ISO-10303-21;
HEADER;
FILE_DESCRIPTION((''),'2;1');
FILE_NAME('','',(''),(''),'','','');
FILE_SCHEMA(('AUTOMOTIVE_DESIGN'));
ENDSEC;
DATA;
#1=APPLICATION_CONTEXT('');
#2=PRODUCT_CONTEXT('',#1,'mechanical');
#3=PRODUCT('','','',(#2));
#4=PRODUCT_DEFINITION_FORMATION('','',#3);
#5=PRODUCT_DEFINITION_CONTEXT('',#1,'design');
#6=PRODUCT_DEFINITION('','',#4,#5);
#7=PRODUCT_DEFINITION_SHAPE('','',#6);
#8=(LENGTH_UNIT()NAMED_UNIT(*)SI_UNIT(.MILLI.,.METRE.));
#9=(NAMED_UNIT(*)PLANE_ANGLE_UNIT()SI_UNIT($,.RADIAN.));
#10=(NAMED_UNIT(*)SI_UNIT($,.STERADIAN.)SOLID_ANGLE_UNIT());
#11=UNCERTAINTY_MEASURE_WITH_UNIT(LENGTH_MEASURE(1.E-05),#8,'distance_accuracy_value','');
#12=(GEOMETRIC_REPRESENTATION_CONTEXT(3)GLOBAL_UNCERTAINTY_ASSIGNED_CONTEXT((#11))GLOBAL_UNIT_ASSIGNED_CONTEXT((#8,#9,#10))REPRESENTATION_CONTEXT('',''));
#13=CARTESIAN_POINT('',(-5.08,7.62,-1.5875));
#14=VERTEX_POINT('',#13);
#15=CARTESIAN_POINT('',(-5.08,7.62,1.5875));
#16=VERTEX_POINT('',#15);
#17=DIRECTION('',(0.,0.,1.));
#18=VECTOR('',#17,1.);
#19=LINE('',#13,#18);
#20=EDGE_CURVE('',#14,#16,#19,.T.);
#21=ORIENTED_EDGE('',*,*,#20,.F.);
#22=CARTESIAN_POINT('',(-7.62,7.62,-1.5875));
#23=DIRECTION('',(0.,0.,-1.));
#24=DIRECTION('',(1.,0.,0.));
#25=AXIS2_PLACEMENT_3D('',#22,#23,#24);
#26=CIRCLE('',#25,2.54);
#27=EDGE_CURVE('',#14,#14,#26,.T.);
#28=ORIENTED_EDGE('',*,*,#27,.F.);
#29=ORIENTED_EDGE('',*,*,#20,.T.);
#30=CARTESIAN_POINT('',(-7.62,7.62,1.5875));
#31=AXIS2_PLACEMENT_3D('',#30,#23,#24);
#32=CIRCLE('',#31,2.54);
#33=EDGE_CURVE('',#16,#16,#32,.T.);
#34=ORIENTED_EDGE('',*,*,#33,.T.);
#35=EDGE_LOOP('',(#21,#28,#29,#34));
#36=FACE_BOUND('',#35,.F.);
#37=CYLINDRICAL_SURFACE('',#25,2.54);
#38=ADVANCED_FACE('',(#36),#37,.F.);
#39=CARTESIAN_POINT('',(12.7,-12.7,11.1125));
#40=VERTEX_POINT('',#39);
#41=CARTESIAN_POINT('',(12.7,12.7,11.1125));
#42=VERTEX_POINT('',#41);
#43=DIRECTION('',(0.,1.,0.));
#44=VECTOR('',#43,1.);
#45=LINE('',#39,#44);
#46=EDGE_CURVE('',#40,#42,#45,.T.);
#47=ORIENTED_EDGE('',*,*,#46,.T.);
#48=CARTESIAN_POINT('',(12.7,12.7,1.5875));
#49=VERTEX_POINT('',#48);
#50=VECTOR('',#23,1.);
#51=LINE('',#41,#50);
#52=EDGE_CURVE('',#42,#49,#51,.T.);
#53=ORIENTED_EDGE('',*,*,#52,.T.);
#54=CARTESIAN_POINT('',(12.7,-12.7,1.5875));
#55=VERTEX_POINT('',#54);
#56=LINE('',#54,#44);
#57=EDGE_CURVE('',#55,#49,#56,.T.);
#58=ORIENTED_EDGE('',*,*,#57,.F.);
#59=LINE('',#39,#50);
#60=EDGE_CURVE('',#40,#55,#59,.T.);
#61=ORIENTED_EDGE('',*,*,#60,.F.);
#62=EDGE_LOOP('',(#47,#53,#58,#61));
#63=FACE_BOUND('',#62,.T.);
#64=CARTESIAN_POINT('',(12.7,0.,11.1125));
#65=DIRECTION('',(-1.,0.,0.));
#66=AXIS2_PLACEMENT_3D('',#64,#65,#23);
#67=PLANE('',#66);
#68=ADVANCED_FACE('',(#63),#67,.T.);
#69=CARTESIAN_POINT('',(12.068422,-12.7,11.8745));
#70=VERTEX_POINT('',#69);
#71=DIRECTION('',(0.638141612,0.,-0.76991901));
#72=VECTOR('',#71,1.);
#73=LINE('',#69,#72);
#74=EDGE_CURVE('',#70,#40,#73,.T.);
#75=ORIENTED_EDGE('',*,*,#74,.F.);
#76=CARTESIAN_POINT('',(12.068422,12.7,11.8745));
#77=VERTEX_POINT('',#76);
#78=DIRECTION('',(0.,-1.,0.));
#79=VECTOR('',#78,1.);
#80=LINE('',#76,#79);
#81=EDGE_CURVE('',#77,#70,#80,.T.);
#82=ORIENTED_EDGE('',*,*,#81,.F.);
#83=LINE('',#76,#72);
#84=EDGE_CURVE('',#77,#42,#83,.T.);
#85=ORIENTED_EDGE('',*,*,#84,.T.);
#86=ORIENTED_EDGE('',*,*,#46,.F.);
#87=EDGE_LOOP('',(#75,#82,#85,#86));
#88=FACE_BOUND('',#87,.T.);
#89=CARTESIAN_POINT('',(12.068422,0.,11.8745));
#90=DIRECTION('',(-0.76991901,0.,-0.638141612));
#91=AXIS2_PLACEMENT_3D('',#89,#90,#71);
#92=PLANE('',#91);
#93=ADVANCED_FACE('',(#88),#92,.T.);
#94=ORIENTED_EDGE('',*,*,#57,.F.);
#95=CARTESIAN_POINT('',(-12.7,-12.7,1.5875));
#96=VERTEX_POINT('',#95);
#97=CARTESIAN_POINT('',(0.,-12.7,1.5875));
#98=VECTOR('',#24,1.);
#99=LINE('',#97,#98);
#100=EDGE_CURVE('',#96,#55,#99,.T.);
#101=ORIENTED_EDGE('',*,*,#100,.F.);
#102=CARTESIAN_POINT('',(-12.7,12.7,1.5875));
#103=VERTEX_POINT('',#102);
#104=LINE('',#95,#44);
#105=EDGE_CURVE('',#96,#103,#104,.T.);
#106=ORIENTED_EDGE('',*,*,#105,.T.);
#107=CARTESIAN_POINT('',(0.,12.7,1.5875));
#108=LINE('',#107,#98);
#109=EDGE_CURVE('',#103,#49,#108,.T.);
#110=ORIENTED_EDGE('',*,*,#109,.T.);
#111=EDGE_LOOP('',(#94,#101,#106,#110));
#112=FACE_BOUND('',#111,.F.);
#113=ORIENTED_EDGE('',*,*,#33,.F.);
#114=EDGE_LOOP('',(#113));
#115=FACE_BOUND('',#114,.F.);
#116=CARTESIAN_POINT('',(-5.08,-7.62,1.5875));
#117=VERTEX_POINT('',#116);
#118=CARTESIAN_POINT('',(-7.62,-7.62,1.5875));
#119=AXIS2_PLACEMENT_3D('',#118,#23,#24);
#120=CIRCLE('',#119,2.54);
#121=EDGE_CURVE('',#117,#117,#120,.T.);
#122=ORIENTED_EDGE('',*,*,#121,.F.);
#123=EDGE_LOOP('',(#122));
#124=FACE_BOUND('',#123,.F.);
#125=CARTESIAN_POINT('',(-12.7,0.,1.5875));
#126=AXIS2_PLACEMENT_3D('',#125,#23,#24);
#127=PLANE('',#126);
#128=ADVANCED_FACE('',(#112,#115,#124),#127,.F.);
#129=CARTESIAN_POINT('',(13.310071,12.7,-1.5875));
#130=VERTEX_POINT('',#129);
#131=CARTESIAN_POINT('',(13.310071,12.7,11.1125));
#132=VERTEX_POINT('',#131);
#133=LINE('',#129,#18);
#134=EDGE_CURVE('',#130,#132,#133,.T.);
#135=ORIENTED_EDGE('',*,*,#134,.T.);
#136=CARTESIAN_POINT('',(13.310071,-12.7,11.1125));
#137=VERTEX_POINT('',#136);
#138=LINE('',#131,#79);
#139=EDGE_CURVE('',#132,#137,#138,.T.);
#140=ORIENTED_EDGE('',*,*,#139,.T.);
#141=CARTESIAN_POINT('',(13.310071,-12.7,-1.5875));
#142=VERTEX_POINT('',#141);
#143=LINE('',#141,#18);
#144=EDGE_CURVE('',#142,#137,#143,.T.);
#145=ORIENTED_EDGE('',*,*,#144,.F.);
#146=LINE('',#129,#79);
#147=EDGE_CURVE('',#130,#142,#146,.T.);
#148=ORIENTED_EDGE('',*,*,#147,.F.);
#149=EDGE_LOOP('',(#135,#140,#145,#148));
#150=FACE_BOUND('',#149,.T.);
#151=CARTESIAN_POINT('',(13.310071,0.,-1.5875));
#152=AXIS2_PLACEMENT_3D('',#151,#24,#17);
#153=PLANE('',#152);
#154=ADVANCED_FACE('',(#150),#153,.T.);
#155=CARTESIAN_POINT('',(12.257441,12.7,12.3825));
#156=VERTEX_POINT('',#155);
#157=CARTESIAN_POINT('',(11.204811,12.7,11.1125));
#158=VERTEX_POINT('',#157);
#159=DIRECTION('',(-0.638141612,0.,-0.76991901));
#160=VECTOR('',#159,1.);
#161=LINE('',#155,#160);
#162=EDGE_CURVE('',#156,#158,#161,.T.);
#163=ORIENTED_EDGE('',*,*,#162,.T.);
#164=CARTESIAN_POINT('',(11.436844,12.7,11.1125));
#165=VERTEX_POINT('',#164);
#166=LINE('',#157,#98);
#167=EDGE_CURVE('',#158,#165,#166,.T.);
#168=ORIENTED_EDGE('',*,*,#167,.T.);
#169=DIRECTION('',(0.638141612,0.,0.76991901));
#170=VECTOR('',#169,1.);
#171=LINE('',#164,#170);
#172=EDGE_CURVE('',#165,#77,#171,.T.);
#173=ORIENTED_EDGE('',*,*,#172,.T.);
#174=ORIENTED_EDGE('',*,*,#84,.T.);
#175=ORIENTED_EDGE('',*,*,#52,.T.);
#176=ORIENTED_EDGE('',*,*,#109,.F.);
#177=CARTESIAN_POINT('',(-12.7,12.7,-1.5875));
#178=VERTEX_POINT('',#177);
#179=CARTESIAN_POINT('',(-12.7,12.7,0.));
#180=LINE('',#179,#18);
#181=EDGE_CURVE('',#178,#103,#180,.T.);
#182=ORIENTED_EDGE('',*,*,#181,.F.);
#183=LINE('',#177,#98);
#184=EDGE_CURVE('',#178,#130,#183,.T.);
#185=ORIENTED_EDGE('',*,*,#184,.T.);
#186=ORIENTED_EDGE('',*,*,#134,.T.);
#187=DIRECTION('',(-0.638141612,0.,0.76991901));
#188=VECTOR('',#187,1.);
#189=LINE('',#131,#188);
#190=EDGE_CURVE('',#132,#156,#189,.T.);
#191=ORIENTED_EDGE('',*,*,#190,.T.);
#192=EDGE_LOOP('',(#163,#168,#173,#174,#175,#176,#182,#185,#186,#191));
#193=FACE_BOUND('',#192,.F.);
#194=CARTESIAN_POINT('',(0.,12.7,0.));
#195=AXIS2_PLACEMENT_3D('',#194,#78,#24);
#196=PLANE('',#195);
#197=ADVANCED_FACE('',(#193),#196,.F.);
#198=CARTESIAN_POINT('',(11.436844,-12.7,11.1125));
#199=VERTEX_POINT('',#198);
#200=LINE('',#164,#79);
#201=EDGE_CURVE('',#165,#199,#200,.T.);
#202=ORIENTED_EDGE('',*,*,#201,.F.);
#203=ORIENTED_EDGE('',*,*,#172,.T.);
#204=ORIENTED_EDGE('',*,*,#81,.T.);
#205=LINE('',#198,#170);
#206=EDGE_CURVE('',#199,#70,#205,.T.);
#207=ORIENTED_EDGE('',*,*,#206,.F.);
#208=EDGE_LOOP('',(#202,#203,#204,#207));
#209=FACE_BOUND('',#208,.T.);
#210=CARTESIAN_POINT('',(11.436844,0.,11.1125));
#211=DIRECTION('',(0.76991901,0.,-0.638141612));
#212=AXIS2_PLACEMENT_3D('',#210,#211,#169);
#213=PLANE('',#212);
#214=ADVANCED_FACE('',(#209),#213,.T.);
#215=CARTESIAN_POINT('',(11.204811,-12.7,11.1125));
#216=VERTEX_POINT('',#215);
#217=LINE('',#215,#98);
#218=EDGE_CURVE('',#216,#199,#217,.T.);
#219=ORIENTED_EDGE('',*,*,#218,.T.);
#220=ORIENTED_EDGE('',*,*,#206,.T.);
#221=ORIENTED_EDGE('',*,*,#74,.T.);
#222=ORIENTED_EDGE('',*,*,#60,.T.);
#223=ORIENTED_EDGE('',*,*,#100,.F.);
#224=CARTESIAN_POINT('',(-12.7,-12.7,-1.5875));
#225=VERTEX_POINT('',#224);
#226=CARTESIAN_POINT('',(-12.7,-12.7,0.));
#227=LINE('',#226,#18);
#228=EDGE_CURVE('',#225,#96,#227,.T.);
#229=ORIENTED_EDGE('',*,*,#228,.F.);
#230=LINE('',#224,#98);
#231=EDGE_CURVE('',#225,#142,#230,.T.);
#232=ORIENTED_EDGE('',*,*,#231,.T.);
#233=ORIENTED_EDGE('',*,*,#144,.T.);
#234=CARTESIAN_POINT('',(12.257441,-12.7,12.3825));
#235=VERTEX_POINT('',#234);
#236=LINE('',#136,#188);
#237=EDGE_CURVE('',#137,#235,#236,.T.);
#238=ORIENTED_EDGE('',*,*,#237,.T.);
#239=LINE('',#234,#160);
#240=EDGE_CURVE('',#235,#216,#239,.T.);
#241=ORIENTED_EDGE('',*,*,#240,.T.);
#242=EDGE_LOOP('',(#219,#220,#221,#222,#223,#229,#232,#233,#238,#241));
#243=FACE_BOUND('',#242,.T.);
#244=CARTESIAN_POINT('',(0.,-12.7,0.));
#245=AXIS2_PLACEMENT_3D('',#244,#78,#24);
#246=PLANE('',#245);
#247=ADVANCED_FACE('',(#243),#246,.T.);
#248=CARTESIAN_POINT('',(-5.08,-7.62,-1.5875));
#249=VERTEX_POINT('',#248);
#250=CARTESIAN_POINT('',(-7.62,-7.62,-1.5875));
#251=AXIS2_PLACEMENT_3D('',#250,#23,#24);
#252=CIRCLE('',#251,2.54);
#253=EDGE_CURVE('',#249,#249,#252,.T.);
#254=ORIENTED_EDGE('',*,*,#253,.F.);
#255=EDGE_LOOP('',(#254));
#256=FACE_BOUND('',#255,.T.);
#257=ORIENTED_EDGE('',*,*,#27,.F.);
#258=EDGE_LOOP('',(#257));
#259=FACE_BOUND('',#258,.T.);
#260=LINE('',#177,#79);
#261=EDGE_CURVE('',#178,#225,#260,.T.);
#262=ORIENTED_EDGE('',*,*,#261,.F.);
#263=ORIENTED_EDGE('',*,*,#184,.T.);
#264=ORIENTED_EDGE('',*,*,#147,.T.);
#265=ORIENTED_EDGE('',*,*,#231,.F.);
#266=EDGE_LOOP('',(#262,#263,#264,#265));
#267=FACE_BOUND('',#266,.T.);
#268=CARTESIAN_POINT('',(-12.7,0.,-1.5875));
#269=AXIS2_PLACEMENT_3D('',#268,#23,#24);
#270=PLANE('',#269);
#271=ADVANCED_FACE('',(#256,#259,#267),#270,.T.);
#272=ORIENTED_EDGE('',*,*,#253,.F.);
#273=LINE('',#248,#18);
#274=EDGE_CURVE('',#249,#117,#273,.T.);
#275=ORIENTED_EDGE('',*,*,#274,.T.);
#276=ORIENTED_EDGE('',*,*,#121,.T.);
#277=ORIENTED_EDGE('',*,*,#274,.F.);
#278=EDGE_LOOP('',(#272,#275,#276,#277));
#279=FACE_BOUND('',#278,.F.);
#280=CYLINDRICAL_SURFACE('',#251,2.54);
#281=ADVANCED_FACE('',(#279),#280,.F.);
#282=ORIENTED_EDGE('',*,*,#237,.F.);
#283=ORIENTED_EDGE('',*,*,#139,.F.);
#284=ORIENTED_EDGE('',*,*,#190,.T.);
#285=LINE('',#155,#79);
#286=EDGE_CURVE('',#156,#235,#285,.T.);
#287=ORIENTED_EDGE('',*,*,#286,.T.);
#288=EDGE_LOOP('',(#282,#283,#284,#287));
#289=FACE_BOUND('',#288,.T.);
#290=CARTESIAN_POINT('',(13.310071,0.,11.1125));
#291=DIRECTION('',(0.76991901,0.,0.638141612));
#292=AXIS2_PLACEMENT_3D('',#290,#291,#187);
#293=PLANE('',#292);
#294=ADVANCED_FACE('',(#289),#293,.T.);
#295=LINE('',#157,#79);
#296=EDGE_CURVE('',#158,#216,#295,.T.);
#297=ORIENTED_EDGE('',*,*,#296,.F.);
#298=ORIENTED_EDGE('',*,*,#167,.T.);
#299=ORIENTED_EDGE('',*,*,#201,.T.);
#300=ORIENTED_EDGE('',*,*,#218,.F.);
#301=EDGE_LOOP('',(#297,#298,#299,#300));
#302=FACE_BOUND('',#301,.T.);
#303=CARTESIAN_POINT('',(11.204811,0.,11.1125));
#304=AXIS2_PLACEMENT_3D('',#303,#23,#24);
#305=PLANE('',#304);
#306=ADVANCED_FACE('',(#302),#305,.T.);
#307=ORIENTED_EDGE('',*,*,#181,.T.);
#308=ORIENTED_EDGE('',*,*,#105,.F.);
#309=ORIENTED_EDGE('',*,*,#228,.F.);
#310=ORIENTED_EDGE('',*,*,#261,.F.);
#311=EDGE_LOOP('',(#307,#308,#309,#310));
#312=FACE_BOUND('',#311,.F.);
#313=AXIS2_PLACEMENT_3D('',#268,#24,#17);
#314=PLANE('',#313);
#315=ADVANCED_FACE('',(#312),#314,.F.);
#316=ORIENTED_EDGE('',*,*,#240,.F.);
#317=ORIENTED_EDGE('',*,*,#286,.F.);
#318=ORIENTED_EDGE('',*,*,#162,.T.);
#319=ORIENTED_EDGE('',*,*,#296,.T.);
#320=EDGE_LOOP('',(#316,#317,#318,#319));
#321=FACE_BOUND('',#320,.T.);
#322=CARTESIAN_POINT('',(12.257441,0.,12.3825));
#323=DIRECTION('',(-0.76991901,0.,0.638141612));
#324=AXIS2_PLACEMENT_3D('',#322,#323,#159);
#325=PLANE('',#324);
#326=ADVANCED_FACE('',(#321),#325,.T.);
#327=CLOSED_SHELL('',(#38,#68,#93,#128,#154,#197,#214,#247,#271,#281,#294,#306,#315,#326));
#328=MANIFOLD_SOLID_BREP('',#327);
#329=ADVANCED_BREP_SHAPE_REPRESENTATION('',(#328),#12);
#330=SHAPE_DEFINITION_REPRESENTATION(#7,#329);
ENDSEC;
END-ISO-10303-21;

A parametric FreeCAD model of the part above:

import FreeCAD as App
import Part
import Sketcher
from FreeCAD import Vector
Q = App.Units.Quantity


def add_polygon(sketch, points):
    """Adds a closed chain of lines whose ends are joined by coincident constraints."""
    first, n = sketch.GeometryCount, len(points)
    for a, b in zip(points, points[1:] + points[:1]):
        sketch.addGeometry(Part.LineSegment(App.Vector(*a, 0), App.Vector(*b, 0)), False)
    for i in range(n):
        sketch.addConstraint(Sketcher.Constraint("Coincident", first + i, 2, first + (i + 1) % n, 1))

doc = App.newDocument("Part")
body = doc.addObject("PartDesign::Body", "Body")

sketch1 = body.newObject("Sketcher::SketchObject", "Sketch")
sketch1.AttachmentSupport = (doc.getObject("XZ_Plane"), [""])
sketch1.MapMode = "FlatFace"
add_polygon(sketch1, [(-12.7, 1.59), (-12.7, -1.59), (13.31, -1.59), (13.31, 11.11), (12.26, 12.38), (11.2, 11.11), (11.44, 11.11), (12.07, 11.87), (12.7, 11.11), (12.7, 1.59)])
sketch1.addConstraint([
    Sketcher.Constraint("Vertical", 0),
    Sketcher.Constraint("Horizontal", 1),
    Sketcher.Constraint("Vertical", 2),
    Sketcher.Constraint("Horizontal", 5),
    Sketcher.Constraint("Vertical", 8),
    Sketcher.Constraint("Horizontal", 9),
    Sketcher.Constraint("Symmetric", 0, 2, 8, 2, -1, 1),
    Sketcher.Constraint("Parallel", 4, 6),
    Sketcher.Constraint("Parallel", 3, 7),
    Sketcher.Constraint("Horizontal", 2, 2, 4, 2),
    Sketcher.Constraint("Horizontal", 5, 2, 7, 2),
    Sketcher.Constraint("Equal", 3, 4),
    Sketcher.Constraint("DistanceX", 9, 2, 9, 1, Q("1 in")),
    Sketcher.Constraint("DistanceY", 2, 1, 2, 2, Q("0.5 in")),
    Sketcher.Constraint("DistanceY", 0, 2, 0, 1, Q("0.125 in")),
    Sketcher.Constraint("DistanceY", 2, 2, 3, 2, Q("0.05 in")),
    Sketcher.Constraint("DistanceY", 6, 2, 3, 2, Q("0.02 in")),
    Sketcher.Constraint("DistanceX", 1, 1, 1, 2, 26.010071),
    Sketcher.Constraint("DistanceX", 5, 1, 5, 2, 0.232033),
])
pad1 = body.newObject("PartDesign::Pad", "Pad")
pad1.Profile = sketch1
pad1.Length = Q("1 in")
pad1.Midplane = True

sketch2 = body.newObject("Sketcher::SketchObject", "Sketch001")
sketch2.AttachmentSupport = (doc.getObject("XY_Plane"), [""])
sketch2.MapMode = "FlatFace"
sketch2.AttachmentOffset = App.Placement(Vector(0, 0, -0.0625 * 25.4), App.Rotation())
sketch2.addGeometry([
    Part.Circle(Vector(-7.6, -7.6, 0), Vector(0, 0, 1), 2.5),
    Part.Circle(Vector(-7.6, 7.6, 0), Vector(0, 0, 1), 2.5),
], False)
sketch2.addConstraint([
    Sketcher.Constraint("Equal", 0, 1),
    Sketcher.Constraint("Symmetric", 0, 3, 1, 3, -1),
    Sketcher.Constraint("Diameter", 0, Q("0.2 in")),
    Sketcher.Constraint("DistanceX", 0, 3, -1, 1, Q("0.3 in")),
    Sketcher.Constraint("DistanceY", 0, 3, -1, 1, Q("0.3 in")),
])
pocket1 = body.newObject("PartDesign::Pocket", "Pocket")
pocket1.Profile = sketch2
pocket1.Type = "ThroughAll"
pocket1.Reversed = True

doc.recompute()
